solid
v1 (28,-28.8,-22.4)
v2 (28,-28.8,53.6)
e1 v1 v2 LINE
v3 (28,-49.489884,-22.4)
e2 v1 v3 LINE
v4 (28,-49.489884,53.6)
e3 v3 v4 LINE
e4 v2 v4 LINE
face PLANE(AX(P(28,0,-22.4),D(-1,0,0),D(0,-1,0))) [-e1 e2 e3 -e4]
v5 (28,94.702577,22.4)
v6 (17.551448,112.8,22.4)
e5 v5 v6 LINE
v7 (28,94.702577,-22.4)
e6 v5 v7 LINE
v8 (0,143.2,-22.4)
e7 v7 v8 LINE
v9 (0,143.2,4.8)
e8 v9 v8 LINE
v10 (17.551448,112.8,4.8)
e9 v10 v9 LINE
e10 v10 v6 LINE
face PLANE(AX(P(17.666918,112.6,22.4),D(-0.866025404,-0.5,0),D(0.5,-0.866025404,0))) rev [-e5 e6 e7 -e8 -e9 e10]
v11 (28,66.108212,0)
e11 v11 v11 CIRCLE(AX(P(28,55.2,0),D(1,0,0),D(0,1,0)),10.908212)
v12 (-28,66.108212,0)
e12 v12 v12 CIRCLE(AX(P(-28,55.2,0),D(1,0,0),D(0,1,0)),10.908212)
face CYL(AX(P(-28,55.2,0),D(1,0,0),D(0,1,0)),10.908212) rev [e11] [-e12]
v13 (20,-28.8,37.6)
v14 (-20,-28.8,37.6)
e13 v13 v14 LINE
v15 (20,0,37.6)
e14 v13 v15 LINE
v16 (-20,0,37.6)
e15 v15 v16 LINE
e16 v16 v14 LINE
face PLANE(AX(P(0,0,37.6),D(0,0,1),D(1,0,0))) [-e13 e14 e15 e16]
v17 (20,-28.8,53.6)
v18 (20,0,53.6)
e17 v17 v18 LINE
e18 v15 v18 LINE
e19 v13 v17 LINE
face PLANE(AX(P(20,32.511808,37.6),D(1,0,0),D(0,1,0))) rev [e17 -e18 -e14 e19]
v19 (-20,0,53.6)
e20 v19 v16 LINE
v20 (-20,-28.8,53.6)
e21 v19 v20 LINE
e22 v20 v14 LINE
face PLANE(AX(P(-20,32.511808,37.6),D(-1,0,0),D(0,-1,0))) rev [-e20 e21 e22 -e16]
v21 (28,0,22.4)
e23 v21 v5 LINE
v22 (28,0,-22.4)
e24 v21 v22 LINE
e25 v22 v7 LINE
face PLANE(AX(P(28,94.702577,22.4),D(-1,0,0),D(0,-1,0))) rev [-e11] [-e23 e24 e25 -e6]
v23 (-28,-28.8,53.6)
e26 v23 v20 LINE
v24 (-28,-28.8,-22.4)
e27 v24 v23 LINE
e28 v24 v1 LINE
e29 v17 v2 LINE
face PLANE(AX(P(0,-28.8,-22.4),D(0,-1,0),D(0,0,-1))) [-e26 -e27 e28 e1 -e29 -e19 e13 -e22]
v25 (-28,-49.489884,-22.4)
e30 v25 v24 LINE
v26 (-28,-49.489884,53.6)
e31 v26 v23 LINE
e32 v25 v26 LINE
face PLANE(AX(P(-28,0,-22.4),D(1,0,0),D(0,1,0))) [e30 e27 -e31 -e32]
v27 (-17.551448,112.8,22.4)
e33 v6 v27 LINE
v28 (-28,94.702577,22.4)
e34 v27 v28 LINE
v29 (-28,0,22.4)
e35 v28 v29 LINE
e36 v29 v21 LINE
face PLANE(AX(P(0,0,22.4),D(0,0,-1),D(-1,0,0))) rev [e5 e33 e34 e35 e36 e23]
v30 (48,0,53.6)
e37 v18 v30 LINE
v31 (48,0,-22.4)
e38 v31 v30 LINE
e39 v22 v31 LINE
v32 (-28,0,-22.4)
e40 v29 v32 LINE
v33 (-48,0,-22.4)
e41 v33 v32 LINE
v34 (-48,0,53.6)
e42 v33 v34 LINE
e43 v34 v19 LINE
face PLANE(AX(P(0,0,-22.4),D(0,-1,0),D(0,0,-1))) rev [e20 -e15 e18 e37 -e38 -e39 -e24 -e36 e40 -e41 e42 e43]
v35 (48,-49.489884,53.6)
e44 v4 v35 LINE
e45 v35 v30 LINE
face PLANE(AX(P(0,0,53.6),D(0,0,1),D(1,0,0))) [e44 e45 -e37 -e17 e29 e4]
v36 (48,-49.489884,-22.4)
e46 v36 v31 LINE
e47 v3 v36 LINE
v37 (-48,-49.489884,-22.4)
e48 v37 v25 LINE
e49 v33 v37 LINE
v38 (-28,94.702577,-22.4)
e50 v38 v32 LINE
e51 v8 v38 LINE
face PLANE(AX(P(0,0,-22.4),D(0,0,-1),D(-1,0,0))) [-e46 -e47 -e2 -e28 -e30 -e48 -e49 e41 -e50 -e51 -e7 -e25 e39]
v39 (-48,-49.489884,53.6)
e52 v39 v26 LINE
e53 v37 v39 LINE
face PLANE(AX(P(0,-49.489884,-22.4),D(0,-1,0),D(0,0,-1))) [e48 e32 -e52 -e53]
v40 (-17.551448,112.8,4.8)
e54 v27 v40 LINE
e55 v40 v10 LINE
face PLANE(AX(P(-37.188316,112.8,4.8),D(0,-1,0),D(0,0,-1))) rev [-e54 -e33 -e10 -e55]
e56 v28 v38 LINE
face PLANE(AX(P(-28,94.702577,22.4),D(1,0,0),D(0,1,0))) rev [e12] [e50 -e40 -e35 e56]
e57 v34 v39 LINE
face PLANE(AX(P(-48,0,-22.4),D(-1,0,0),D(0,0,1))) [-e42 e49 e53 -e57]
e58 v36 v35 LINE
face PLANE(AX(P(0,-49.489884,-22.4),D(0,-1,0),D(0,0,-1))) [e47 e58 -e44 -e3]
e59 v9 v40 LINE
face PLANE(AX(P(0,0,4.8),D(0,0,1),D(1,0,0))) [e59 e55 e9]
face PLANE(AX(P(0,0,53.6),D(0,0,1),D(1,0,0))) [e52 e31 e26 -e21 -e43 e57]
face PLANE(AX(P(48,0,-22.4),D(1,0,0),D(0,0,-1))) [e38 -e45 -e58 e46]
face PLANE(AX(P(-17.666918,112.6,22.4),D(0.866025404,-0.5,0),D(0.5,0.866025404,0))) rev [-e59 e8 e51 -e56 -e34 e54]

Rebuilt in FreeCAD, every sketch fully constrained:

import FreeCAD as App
import Part
import Sketcher

V = App.Vector
Q = App.Units.Quantity


def add_polygon(sketch, points):
    """Adds a closed chain of lines whose ends are joined by coincident constraints."""
    first, n = sketch.GeometryCount, len(points)
    for a, b in zip(points, points[1:] + points[:1]):
        sketch.addGeometry(Part.LineSegment(App.Vector(*a, 0), App.Vector(*b, 0)), False)
    for i in range(n):
        sketch.addConstraint(Sketcher.Constraint("Coincident", first + i, 2, first + (i + 1) % n, 1))

doc = App.newDocument("Part")
body = doc.addObject("PartDesign::Body", "Body")

# Sketch on XY plane
sketch1 = doc.addObject("Sketcher::SketchObject", "Sketch")
body.addObject(sketch1)
sketch1.AttachmentSupport = (doc.XY_Plane, [""])
sketch1.MapMode = "FlatFace"
add_polygon(sketch1, [(-18, 113), (-28, 95), (-28, 0), (28, 0), (28, 95), (18, 113), (0, 143)])  # lines 0-6
sketch1.addConstraint([
    Sketcher.Constraint("Vertical", 1),
    Sketcher.Constraint("Horizontal", 2),
    Sketcher.Constraint("Vertical", 3),
    Sketcher.Constraint("Symmetric", 1, 2, 2, 2, -1, 1),
    Sketcher.Constraint("Symmetric", 4, 2, 6, 2, -2),
    Sketcher.Constraint("PointOnObject", 5, 2, -2),
    Sketcher.Constraint("Parallel", 4, 5),
    Sketcher.Constraint("Parallel", 0, 6),
    Sketcher.Constraint("DistanceX", 2, 1, 2, 2, Q("56 mm")),
    Sketcher.Constraint("Angle", 0, Q("-120 deg")),
    Sketcher.Constraint("DistanceY", -1, 1, 4, 2, Q("112.6 mm")),
    Sketcher.Constraint("DistanceY", -1, 1, 5, 2, Q("143.2 mm")),
])
pad1 = doc.addObject("PartDesign::Pad", "Pad")
body.addObject(pad1)
pad1.Profile = sketch1
pad1.Length = 44.8
pad1.Midplane = True

# Sketch on YZ plane
sketch2 = doc.addObject("Sketcher::SketchObject", "Sketch001")
body.addObject(sketch2)
sketch2.AttachmentSupport = (doc.YZ_Plane, [""])
sketch2.MapMode = "FlatFace"
sketch2.AttachmentOffset = App.Placement(V(0, 0, 28), App.Rotation())
sketch2.addGeometry(Part.Circle(V(55, 0, 0), V(0, 0, 1), 11), False)
sketch2.addConstraint([
    Sketcher.Constraint("PointOnObject", 0, 3, -1),
    Sketcher.Constraint("DistanceX", -1, 1, 0, 3, Q("55.2 mm")),
    Sketcher.Constraint("Diameter", 0, Q("21.816423 mm")),
])
pocket1 = doc.addObject("PartDesign::Pocket", "Pocket")
body.addObject(pocket1)
pocket1.Profile = sketch2
pocket1.Type = "ThroughAll"

# Sketch on XY plane
sketch3 = doc.addObject("Sketcher::SketchObject", "Sketch002")
body.addObject(sketch3)
sketch3.AttachmentSupport = (doc.XY_Plane, [""])
sketch3.MapMode = "FlatFace"
sketch3.AttachmentOffset = App.Placement(V(0, 0, 22.4), App.Rotation())
add_polygon(sketch3, [(-37, 152), (-37, 113), (34, 113), (34, 152)])  # lines 0-3
sketch3.addConstraint([
    Sketcher.Constraint("Vertical", 0),
    Sketcher.Constraint("Horizontal", 1),
    Sketcher.Constraint("Vertical", 2),
    Sketcher.Constraint("Horizontal", 3),
    Sketcher.Constraint("DistanceY", -1, 1, 0, 2, Q("112.8 mm")),
    Sketcher.Constraint("DistanceX", 1, 1, 1, 2, Q("70.975037 mm")),
    Sketcher.Constraint("DistanceY", 0, 2, 0, 1, Q("39.358884 mm")),
    Sketcher.Constraint("DistanceX", -1, 1, 1, 2, Q("33.786721 mm")),
])
pocket2 = doc.addObject("PartDesign::Pocket", "Pocket001")
body.addObject(pocket2)
pocket2.Profile = sketch3
pocket2.Length = 17.6

# Sketch on XY plane
sketch4 = doc.addObject("Sketcher::SketchObject", "Sketch003")
body.addObject(sketch4)
sketch4.AttachmentSupport = (doc.XY_Plane, [""])
sketch4.MapMode = "FlatFace"
add_polygon(sketch4, [(-48, 0), (-48, -49), (-28, -49), (-28, -29), (28, -29), (28, -49), (48, -49), (48, 0)])  # lines 0-7
sketch4.addConstraint([
    Sketcher.Constraint("Vertical", 0),
    Sketcher.Constraint("Horizontal", 1),
    Sketcher.Constraint("Vertical", 2),
    Sketcher.Constraint("Horizontal", 3),
    Sketcher.Constraint("Vertical", 4),
    Sketcher.Constraint("Horizontal", 5),
    Sketcher.Constraint("Vertical", 6),
    Sketcher.Constraint("Horizontal", 7),
    Sketcher.Constraint("Symmetric", 6, 2, 7, 2, -1, 1),
    Sketcher.Constraint("Symmetric", 1, 2, 4, 2, -2),
    Sketcher.Constraint("DistanceX", 1, 1, 1, 2, Q("20 mm")),
    Sketcher.Constraint("DistanceX", 3, 1, 3, 2, Q("56 mm")),
    Sketcher.Constraint("DistanceY", 2, 2, -1, 1, Q("28.8 mm")),
    Sketcher.Constraint("DistanceY", 0, 2, 0, 1, Q("49.489884 mm")),
])
pad2 = doc.addObject("PartDesign::Pad", "Pad001")
body.addObject(pad2)
pad2.Profile = sketch4
pad2.Type = "TwoLengths"
pad2.Length = 53.6
pad2.Length2 = 22.4

# Sketch on XY plane
sketch5 = doc.addObject("Sketcher::SketchObject", "Sketch004")
body.addObject(sketch5)
sketch5.AttachmentSupport = (doc.XY_Plane, [""])
sketch5.MapMode = "FlatFace"
sketch5.AttachmentOffset = App.Placement(V(0, 0, 53.6), App.Rotation())
add_polygon(sketch5, [(-20, 33), (-20, -61), (20, -61), (20, 33)])  # lines 0-3
sketch5.addConstraint([
    Sketcher.Constraint("Vertical", 0),
    Sketcher.Constraint("Horizontal", 1),
    Sketcher.Constraint("Vertical", 2),
    Sketcher.Constraint("Horizontal", 3),
    Sketcher.Constraint("DistanceX", 1, 1, 1, 2, Q("40 mm")),
    Sketcher.Constraint("DistanceX", 0, 2, -1, 1, Q("20 mm")),
    Sketcher.Constraint("DistanceY", 0, 2, 0, 1, Q("93.823616 mm")),
    Sketcher.Constraint("DistanceY", 0, 2, -1, 1, Q("61.311808 mm")),
])
pocket3 = doc.addObject("PartDesign::Pocket", "Pocket002")
body.addObject(pocket3)
pocket3.Profile = sketch5
pocket3.Length = 16

doc.recompute()
